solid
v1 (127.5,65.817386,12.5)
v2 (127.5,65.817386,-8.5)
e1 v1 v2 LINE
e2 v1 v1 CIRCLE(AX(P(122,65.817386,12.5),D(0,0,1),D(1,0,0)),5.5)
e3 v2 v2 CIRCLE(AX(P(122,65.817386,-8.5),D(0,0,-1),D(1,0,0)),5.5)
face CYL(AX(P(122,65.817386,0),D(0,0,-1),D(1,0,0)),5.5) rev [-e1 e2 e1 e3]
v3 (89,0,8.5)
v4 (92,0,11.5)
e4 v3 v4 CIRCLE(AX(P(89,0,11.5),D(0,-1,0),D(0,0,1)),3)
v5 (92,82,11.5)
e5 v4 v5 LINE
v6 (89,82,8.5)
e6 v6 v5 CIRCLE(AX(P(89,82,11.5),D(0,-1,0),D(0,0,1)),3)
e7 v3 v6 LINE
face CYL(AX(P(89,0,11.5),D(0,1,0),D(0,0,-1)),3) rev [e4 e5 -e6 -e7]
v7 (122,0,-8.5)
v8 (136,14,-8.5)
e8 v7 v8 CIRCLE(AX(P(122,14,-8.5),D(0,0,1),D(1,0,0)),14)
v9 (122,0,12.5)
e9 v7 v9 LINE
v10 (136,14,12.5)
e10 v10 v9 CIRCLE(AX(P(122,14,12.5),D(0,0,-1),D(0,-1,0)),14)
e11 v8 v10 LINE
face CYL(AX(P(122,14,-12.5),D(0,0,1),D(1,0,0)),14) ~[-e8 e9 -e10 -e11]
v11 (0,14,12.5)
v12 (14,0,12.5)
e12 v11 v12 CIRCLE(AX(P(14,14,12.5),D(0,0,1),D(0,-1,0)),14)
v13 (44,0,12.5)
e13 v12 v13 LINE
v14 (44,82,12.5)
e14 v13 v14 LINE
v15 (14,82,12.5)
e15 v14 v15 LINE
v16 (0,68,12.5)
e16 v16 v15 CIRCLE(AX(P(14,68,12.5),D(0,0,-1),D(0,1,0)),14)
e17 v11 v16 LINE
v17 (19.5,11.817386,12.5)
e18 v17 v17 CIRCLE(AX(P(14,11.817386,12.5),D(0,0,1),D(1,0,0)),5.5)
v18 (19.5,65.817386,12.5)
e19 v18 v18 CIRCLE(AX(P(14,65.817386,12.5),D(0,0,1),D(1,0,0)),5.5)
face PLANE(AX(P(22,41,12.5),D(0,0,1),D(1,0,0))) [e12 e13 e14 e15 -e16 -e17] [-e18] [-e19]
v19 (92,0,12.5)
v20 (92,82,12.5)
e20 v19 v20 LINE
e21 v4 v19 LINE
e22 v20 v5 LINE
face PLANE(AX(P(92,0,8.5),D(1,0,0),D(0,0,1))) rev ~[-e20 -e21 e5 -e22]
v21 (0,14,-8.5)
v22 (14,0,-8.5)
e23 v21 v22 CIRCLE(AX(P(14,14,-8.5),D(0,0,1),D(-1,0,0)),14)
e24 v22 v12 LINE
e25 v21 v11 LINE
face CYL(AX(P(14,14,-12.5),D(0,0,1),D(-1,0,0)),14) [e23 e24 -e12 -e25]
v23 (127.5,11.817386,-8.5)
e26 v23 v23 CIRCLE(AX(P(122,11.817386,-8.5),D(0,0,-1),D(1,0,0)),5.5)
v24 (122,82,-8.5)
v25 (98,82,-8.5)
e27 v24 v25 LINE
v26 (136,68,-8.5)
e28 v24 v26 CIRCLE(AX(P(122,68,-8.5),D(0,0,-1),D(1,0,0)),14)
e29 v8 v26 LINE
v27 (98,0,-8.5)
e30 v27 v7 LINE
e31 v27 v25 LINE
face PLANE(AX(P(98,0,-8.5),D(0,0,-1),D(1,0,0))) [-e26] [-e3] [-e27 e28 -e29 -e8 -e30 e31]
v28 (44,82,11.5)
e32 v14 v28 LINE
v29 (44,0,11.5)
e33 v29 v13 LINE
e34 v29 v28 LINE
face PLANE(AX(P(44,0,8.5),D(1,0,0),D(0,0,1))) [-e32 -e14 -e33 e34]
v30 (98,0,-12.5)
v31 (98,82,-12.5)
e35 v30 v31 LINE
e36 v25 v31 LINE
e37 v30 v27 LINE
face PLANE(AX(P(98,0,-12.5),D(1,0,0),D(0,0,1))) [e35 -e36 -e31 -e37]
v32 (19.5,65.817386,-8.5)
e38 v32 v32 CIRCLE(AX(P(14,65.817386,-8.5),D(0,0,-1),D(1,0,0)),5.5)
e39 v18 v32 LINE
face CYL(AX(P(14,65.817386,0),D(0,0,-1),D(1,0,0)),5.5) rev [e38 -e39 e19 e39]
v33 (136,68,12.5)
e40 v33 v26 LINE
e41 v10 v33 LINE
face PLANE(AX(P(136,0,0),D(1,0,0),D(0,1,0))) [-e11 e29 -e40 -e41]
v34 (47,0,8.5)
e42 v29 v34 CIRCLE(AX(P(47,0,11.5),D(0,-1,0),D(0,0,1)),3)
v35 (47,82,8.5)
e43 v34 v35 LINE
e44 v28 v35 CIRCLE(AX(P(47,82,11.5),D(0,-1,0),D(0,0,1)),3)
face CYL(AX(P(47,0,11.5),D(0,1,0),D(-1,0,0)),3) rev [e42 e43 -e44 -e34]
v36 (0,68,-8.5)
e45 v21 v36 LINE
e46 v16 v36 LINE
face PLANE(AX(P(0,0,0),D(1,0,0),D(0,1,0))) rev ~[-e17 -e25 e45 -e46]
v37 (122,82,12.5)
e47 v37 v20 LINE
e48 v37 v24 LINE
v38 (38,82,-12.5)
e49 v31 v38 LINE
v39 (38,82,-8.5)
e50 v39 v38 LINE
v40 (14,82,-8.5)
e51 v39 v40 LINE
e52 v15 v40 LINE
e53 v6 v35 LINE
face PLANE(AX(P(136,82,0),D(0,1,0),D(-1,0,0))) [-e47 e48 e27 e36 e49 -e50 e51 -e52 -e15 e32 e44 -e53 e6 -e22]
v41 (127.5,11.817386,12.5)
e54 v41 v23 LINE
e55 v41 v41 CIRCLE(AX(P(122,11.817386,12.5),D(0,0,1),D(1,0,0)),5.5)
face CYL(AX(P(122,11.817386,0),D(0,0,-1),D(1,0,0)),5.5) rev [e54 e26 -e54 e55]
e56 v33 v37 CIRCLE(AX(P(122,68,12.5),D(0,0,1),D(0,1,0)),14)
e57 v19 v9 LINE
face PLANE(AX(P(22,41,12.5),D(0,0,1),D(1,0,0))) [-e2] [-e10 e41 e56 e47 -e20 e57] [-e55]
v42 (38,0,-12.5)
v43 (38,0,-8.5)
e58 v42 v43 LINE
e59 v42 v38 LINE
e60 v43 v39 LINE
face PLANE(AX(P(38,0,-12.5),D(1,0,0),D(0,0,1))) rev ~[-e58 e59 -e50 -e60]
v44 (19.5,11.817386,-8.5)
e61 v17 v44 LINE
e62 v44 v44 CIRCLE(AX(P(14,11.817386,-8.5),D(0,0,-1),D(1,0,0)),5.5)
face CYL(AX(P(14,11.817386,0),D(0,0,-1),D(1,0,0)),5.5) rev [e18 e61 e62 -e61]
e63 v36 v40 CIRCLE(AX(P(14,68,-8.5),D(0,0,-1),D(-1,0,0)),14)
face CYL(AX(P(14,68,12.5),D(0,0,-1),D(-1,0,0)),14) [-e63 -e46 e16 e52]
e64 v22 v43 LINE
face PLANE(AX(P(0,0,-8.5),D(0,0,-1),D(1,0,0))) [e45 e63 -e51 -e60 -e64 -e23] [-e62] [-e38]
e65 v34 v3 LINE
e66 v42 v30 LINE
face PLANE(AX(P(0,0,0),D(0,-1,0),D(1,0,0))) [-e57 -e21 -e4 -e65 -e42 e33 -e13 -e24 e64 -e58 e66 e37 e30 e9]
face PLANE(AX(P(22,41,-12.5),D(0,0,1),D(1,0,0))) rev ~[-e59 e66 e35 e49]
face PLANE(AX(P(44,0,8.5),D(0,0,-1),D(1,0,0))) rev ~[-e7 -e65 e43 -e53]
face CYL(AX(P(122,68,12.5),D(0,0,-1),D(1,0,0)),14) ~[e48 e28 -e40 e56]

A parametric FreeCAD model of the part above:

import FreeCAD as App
import Part
import Sketcher

V = App.Vector
Q = App.Units.Quantity


def edges_at(feature, points):
    """Names of the edges that pass closest to the given points."""
    edges = feature.Shape.Edges
    near = lambda p: min(range(len(edges)), key=lambda i: edges[i].distToShape(Part.Vertex(*p))[0])
    return sorted({f"Edge{near(p) + 1}" for p in points})

doc = App.newDocument("Part")
body = doc.addObject("PartDesign::Body", "Body")

sketch1 = body.newObject("Sketcher::SketchObject", "Sketch")
sketch1.AttachmentSupport = (doc.getObject("XY_Plane"), [""])
sketch1.MapMode = "FlatFace"
sketch1.addGeometry([
    Part.LineSegment(V(0, 82, 0), V(0, 0, 0)),
    Part.LineSegment(V(0, 0, 0), V(136, 0, 0)),
    Part.LineSegment(V(136, 0, 0), V(136, 82, 0)),
    Part.LineSegment(V(136, 82, 0), V(0, 82, 0)),
    Part.Circle(V(14, 12, 0), V(0, 0, 1), 6),
    Part.Circle(V(122, 12, 0), V(0, 0, 1), 6),
    Part.Circle(V(14, 66, 0), V(0, 0, 1), 6),
    Part.Circle(V(122, 66, 0), V(0, 0, 1), 6),
], False)
sketch1.addConstraint([
    Sketcher.Constraint("Coincident", 0, 2, 1, 1),
    Sketcher.Constraint("Coincident", 1, 2, 2, 1),
    Sketcher.Constraint("Coincident", 2, 2, 3, 1),
    Sketcher.Constraint("Coincident", 3, 2, 0, 1),
    Sketcher.Constraint("Vertical", 0),
    Sketcher.Constraint("Horizontal", 1),
    Sketcher.Constraint("Vertical", 2),
    Sketcher.Constraint("Horizontal", 3),
    Sketcher.Constraint("Coincident", 0, 2, -1, 1),
    Sketcher.Constraint("Equal", 4, 5),
    Sketcher.Constraint("Equal", 5, 6),
    Sketcher.Constraint("Equal", 6, 7),
    Sketcher.Constraint("Horizontal", 4, 3, 5, 3),
    Sketcher.Constraint("Horizontal", 6, 3, 7, 3),
    Sketcher.Constraint("Vertical", 4, 3, 6, 3),
    Sketcher.Constraint("Vertical", 5, 3, 7, 3),
    Sketcher.Constraint("Diameter", 4, Q("11 mm")),
    Sketcher.Constraint("DistanceX", 1, 1, 1, 2, Q("136 mm")),
    Sketcher.Constraint("DistanceY", 0, 2, 0, 1, Q("82 mm")),
    Sketcher.Constraint("DistanceX", -1, 1, 4, 3, Q("14 mm")),
    Sketcher.Constraint("DistanceX", -1, 1, 5, 3, Q("122 mm")),
    Sketcher.Constraint("DistanceY", 4, 3, 6, 3, Q("54 mm")),
    Sketcher.Constraint("DistanceY", -1, 1, 4, 3, Q("11.817386 mm")),
])
pad1 = body.newObject("PartDesign::Pad", "Pad")
pad1.Profile = sketch1
pad1.Length = 25
pad1.Midplane = True
doc.recompute()

fillet = body.newObject("PartDesign::Fillet", "Fillet")
fillet.Base = (pad1, edges_at(pad1, [
    (0, 82, 0),
    (136, 82, 0),
    (136, 0, 0),
    (0, 0, 0),
]))
fillet.Radius = 14

sketch2 = body.newObject("Sketcher::SketchObject", "Sketch001")
sketch2.AttachmentSupport = (doc.getObject("XZ_Plane"), [""])
sketch2.MapMode = "FlatFace"
sketch2.addGeometry([
    Part.LineSegment(V(44, 12.5, 0), V(44, 8.5, 0)),
    Part.LineSegment(V(44, 8.5, 0), V(92, 8.5, 0)),
    Part.LineSegment(V(92, 8.5, 0), V(92, 12.5, 0)),
    Part.LineSegment(V(92, 12.5, 0), V(44, 12.5, 0)),
], False)
sketch2.addConstraint([
    Sketcher.Constraint("Coincident", 0, 2, 1, 1),
    Sketcher.Constraint("Coincident", 1, 2, 2, 1),
    Sketcher.Constraint("Coincident", 2, 2, 3, 1),
    Sketcher.Constraint("Coincident", 3, 2, 0, 1),
    Sketcher.Constraint("Vertical", 0),
    Sketcher.Constraint("Horizontal", 1),
    Sketcher.Constraint("Vertical", 2),
    Sketcher.Constraint("Horizontal", 3),
    Sketcher.Constraint("DistanceX", 1, 1, 1, 2, Q("48 mm")),
    Sketcher.Constraint("DistanceY", 0, 2, 0, 1, Q("4 mm")),
    Sketcher.Constraint("DistanceX", -1, 1, 0, 2, Q("44 mm")),
    Sketcher.Constraint("DistanceY", -1, 1, 0, 2, Q("8.5 mm")),
])
pocket1 = body.newObject("PartDesign::Pocket", "Pocket")
pocket1.Profile = sketch2
pocket1.Type = "ThroughAll"
doc.recompute()

fillet2 = body.newObject("PartDesign::Fillet", "Fillet001")
fillet2.Base = (pocket1, edges_at(pocket1, [(44, 41, 8.5), (92, 41, 8.5)]))
fillet2.Radius = 3

sketch3 = body.newObject("Sketcher::SketchObject", "Sketch002")
sketch3.AttachmentSupport = (doc.getObject("XZ_Plane"), [""])
sketch3.MapMode = "FlatFace"
sketch3.addGeometry([
    Part.LineSegment(V(98, -8.5, 0), V(98, -12.5, 0)),
    Part.LineSegment(V(98, -12.5, 0), V(136, -12.5, 0)),
    Part.LineSegment(V(136, -12.5, 0), V(136, -8.5, 0)),
    Part.LineSegment(V(136, -8.5, 0), V(98, -8.5, 0)),
    Part.LineSegment(V(0, -8.5, 0), V(0, -12.5, 0)),
    Part.LineSegment(V(0, -12.5, 0), V(38, -12.5, 0)),
    Part.LineSegment(V(38, -12.5, 0), V(38, -8.5, 0)),
    Part.LineSegment(V(38, -8.5, 0), V(0, -8.5, 0)),
], False)
sketch3.addConstraint([
    Sketcher.Constraint("Coincident", 0, 2, 1, 1),
    Sketcher.Constraint("Coincident", 1, 2, 2, 1),
    Sketcher.Constraint("Coincident", 2, 2, 3, 1),
    Sketcher.Constraint("Coincident", 3, 2, 0, 1),
    Sketcher.Constraint("Coincident", 4, 2, 5, 1),
    Sketcher.Constraint("Coincident", 5, 2, 6, 1),
    Sketcher.Constraint("Coincident", 6, 2, 7, 1),
    Sketcher.Constraint("Coincident", 7, 2, 4, 1),
    Sketcher.Constraint("Vertical", 0),
    Sketcher.Constraint("Horizontal", 1),
    Sketcher.Constraint("Vertical", 2),
    Sketcher.Constraint("Horizontal", 3),
    Sketcher.Constraint("Vertical", 4),
    Sketcher.Constraint("Horizontal", 5),
    Sketcher.Constraint("Vertical", 6),
    Sketcher.Constraint("Horizontal", 7),
    Sketcher.Constraint("PointOnObject", 4, 2, -2),
    Sketcher.Constraint("Horizontal", 1, 2, 4, 2),
    Sketcher.Constraint("Horizontal", 3, 2, 6, 2),
    Sketcher.Constraint("Equal", 3, 5),
    Sketcher.Constraint("DistanceX", 1, 1, 1, 2, Q("38 mm")),
    Sketcher.Constraint("DistanceY", 0, 2, 0, 1, Q("4 mm")),
    Sketcher.Constraint("DistanceX", -1, 1, 0, 2, Q("98 mm")),
    Sketcher.Constraint("DistanceY", 0, 2, -1, 1, Q("12.5 mm")),
])
pocket2 = body.newObject("PartDesign::Pocket", "Pocket001")
pocket2.Profile = sketch3
pocket2.Type = "ThroughAll"

doc.recompute()
